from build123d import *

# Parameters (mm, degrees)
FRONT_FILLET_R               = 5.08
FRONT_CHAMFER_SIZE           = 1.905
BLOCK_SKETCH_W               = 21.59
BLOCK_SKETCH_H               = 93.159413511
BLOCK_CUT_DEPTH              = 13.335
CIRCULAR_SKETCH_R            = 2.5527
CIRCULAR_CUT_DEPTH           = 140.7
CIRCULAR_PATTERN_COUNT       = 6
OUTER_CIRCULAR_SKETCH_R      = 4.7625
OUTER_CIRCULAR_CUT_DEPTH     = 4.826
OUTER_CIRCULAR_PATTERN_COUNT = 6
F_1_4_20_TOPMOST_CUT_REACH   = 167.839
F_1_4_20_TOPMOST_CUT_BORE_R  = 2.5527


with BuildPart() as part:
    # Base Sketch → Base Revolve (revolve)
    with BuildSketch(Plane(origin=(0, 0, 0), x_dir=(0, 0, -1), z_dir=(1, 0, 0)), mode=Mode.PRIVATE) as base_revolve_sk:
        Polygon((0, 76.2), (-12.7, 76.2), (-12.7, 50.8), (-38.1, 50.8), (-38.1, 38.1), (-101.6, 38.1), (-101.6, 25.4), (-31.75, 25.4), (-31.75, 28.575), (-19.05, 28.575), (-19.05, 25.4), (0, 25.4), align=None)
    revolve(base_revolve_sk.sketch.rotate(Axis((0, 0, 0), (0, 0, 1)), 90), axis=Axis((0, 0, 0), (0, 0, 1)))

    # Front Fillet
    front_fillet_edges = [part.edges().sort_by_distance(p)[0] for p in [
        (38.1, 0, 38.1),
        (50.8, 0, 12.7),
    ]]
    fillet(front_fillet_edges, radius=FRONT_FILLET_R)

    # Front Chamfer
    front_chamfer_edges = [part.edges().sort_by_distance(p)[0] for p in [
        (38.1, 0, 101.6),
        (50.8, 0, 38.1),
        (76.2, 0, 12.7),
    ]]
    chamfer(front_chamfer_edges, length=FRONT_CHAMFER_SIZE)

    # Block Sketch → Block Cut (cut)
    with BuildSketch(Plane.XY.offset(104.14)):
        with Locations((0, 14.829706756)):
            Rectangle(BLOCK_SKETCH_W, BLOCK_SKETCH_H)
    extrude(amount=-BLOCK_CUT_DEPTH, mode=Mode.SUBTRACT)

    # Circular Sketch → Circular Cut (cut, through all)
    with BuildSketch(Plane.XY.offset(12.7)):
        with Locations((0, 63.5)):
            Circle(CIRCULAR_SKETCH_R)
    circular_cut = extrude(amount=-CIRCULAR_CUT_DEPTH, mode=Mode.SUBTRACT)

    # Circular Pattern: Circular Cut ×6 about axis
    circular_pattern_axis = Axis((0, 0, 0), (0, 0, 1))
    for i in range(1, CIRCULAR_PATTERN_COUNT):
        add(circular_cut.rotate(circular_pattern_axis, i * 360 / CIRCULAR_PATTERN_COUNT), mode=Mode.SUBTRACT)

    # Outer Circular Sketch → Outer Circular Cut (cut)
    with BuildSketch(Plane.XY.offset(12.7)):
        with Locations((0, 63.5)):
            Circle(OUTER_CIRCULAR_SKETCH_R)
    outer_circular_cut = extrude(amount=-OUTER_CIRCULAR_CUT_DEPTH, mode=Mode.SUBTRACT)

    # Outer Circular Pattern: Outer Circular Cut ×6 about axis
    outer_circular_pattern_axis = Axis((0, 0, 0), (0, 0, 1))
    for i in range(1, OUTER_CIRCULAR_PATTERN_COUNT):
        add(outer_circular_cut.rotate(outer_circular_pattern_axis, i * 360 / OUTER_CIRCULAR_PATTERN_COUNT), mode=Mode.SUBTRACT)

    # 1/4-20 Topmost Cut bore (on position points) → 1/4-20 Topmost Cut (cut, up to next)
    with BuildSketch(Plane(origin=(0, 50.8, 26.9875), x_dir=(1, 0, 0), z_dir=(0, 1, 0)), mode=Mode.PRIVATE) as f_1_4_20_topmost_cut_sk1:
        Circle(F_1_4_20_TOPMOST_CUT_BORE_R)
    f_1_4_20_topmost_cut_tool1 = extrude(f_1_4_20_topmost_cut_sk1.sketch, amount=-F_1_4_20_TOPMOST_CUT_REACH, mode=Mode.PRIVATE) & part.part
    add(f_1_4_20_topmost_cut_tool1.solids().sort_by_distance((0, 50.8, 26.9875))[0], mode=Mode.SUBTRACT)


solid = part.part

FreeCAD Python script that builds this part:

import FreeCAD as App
import Part
import Sketcher

V = App.Vector
Q = App.Units.Quantity


def edges_at(feature, points):
    """Names of the edges that pass closest to the given points."""
    edges = feature.Shape.Edges
    near = lambda p: min(range(len(edges)), key=lambda i: edges[i].distToShape(Part.Vertex(*p))[0])
    return sorted({f"Edge{near(p) + 1}" for p in points})


def add_polygon(sketch, points):
    """Adds a closed chain of lines whose ends are joined by coincident constraints."""
    first, n = sketch.GeometryCount, len(points)
    for a, b in zip(points, points[1:] + points[:1]):
        sketch.addGeometry(Part.LineSegment(App.Vector(*a, 0), App.Vector(*b, 0)), False)
    for i in range(n):
        sketch.addConstraint(Sketcher.Constraint("Coincident", first + i, 2, first + (i + 1) % n, 1))

doc = App.newDocument("Part")
body = doc.addObject("PartDesign::Body", "Body")

# Sketch on YZ plane
sketch1 = doc.addObject("Sketcher::SketchObject", "Sketch")
body.addObject(sketch1)
sketch1.AttachmentSupport = (doc.YZ_Plane, [""])
sketch1.MapMode = "FlatFace"
add_polygon(sketch1, [(76.2, 0), (76.2, 12.7), (50.8, 12.7), (50.8, 38.1), (38.1, 38.1), (38.1, 101.6), (25.4, 101.6), (25.4, 31.8), (28.6, 31.8), (28.6, 19.1), (25.4, 19.1), (25.4, 0)])  # lines 0-11
sketch1.addConstraint([
    Sketcher.Constraint("Vertical", 0),
    Sketcher.Constraint("Horizontal", 1),
    Sketcher.Constraint("Vertical", 2),
    Sketcher.Constraint("Horizontal", 3),
    Sketcher.Constraint("Vertical", 4),
    Sketcher.Constraint("Horizontal", 5),
    Sketcher.Constraint("Vertical", 6),
    Sketcher.Constraint("Horizontal", 7),
    Sketcher.Constraint("Vertical", 8),
    Sketcher.Constraint("Horizontal", 9),
    Sketcher.Constraint("Vertical", 10),
    Sketcher.Constraint("Horizontal", 11),
    Sketcher.Constraint("PointOnObject", 10, 2, -1),
    Sketcher.Constraint("Vertical", 6, 2, 9, 2),
    Sketcher.Constraint("Equal", 3, 5),
    Sketcher.Constraint("Equal", 5, 0),
    Sketcher.Constraint("Equal", 1, 2),
    Sketcher.Constraint("Equal", 0, 8),
    Sketcher.Constraint("DistanceX", 1, 2, 1, 1, Q("1 in")),
    Sketcher.Constraint("DistanceX", 11, 1, 11, 2, Q("2 in")),
    Sketcher.Constraint("DistanceY", 4, 1, 4, 2, Q("2.5 in")),
    Sketcher.Constraint("DistanceX", -1, 1, 0, 2, Q("3 in")),
    Sketcher.Constraint("DistanceY", 6, 2, 6, 1, Q("2.75 in")),
    Sketcher.Constraint("DistanceX", 7, 1, 7, 2, Q("0.125 in")),
])
revolution = doc.addObject("PartDesign::Revolution", "Revolution")
body.addObject(revolution)
revolution.Profile = sketch1
revolution.ReferenceAxis = (sketch1, ["V_Axis"])
revolution.Angle = 360
doc.recompute()

fillet = doc.addObject("PartDesign::Fillet", "Fillet")
body.addObject(fillet)
fillet.Base = (revolution, edges_at(revolution, [(38.1, 0, 38.1), (50.8, 0, 12.7)]))
fillet.Radius = Q("0.2 in")
doc.recompute()

chamfer = doc.addObject("PartDesign::Chamfer", "Chamfer")
body.addObject(chamfer)
chamfer.Base = (fillet, edges_at(fillet, [(38.1, 0, 101.6), (50.8, 0, 38.1), (76.2, 0, 12.7)]))
chamfer.Size = Q("0.075 in")

# Sketch on XY plane
sketch2 = doc.addObject("Sketcher::SketchObject", "Sketch001")
body.addObject(sketch2)
sketch2.AttachmentSupport = (doc.XY_Plane, [""])
sketch2.MapMode = "FlatFace"
sketch2.AttachmentOffset = App.Placement(V(0, 0, 4.1 * 25.4), App.Rotation())
add_polygon(sketch2, [(-11, 61), (-11, -32), (11, -32), (11, 61)])  # lines 0-3
sketch2.addConstraint([
    Sketcher.Constraint("Vertical", 0),
    Sketcher.Constraint("Horizontal", 1),
    Sketcher.Constraint("Vertical", 2),
    Sketcher.Constraint("Horizontal", 3),
    Sketcher.Constraint("DistanceX", 1, 1, 1, 2, Q("0.85 in")),
    Sketcher.Constraint("DistanceY", 0, 2, -1, 1, Q("1.25 in")),
    Sketcher.Constraint("DistanceX", 0, 2, -1, 1, Q("0.425 in")),
    Sketcher.Constraint("DistanceY", 0, 2, 0, 1, Q("93.159414 mm")),
])
pocket1 = doc.addObject("PartDesign::Pocket", "Pocket")
body.addObject(pocket1)
pocket1.Profile = sketch2
pocket1.Length = Q("0.525 in")

# Sketch on XY plane
sketch3 = doc.addObject("Sketcher::SketchObject", "Sketch002")
body.addObject(sketch3)
sketch3.AttachmentSupport = (doc.XY_Plane, [""])
sketch3.MapMode = "FlatFace"
sketch3.AttachmentOffset = App.Placement(V(0, 0, 0.5 * 25.4), App.Rotation())
sketch3.addGeometry(Part.Circle(V(0, 63.5, 0), V(0, 0, 1), 2.6), False)
sketch3.addConstraint([
    Sketcher.Constraint("PointOnObject", 0, 3, -2),
    Sketcher.Constraint("Diameter", 0, Q("0.201 in")),
    Sketcher.Constraint("DistanceY", -1, 1, 0, 3, Q("2.5 in")),
])
pocket2 = doc.addObject("PartDesign::Pocket", "Pocket001")
body.addObject(pocket2)
pocket2.Profile = sketch3
pocket2.Type = "ThroughAll"
doc.recompute()

polarpattern = doc.addObject("PartDesign::PolarPattern", "PolarPattern")
body.addObject(polarpattern)
polarpattern.Originals = [pocket2]
polarpattern.Axis = (doc.Z_Axis, [""])
polarpattern.Angle = 360
polarpattern.Occurrences = 6
body.Tip = polarpattern

# Sketch on XY plane
sketch4 = doc.addObject("Sketcher::SketchObject", "Sketch003")
body.addObject(sketch4)
sketch4.AttachmentSupport = (doc.XY_Plane, [""])
sketch4.MapMode = "FlatFace"
sketch4.AttachmentOffset = App.Placement(V(0, 0, 0.5 * 25.4), App.Rotation())
sketch4.addGeometry(Part.Circle(V(0, 63.5, 0), V(0, 0, 1), 4.8), False)
sketch4.addConstraint([
    Sketcher.Constraint("PointOnObject", 0, 3, -2),
    Sketcher.Constraint("Diameter", 0, Q("0.375 in")),
    Sketcher.Constraint("DistanceY", -1, 1, 0, 3, Q("2.5 in")),
])
pocket3 = doc.addObject("PartDesign::Pocket", "Pocket002")
body.addObject(pocket3)
pocket3.Profile = sketch4
pocket3.Length = Q("0.19 in")
doc.recompute()

polarpattern2 = doc.addObject("PartDesign::PolarPattern", "PolarPattern001")
body.addObject(polarpattern2)
polarpattern2.Originals = [pocket3]
polarpattern2.Axis = (doc.Z_Axis, [""])
polarpattern2.Angle = 360
polarpattern2.Occurrences = 6
body.Tip = polarpattern2

# Sketch on XZ plane
sketch5 = doc.addObject("Sketcher::SketchObject", "Sketch004")
body.addObject(sketch5)
sketch5.AttachmentSupport = (doc.XZ_Plane, [""])
sketch5.MapMode = "FlatFace"
sketch5.AttachmentOffset = App.Placement(V(0, 0, -2 * 25.4), App.Rotation())
sketch5.addGeometry(Part.Circle(V(0, 27, 0), V(0, 0, 1), 2.6), False)
sketch5.addConstraint([
    Sketcher.Constraint("PointOnObject", 0, 3, -2),
    Sketcher.Constraint("Diameter", 0, Q("0.201 in")),
    Sketcher.Constraint("DistanceY", -1, 1, 0, 3, Q("1.0625 in")),
])
pocket4 = doc.addObject("PartDesign::Pocket", "Pocket003")
body.addObject(pocket4)
pocket4.Profile = sketch5
pocket4.Length = 22.339249
pocket4.Reversed = True

doc.recompute()
